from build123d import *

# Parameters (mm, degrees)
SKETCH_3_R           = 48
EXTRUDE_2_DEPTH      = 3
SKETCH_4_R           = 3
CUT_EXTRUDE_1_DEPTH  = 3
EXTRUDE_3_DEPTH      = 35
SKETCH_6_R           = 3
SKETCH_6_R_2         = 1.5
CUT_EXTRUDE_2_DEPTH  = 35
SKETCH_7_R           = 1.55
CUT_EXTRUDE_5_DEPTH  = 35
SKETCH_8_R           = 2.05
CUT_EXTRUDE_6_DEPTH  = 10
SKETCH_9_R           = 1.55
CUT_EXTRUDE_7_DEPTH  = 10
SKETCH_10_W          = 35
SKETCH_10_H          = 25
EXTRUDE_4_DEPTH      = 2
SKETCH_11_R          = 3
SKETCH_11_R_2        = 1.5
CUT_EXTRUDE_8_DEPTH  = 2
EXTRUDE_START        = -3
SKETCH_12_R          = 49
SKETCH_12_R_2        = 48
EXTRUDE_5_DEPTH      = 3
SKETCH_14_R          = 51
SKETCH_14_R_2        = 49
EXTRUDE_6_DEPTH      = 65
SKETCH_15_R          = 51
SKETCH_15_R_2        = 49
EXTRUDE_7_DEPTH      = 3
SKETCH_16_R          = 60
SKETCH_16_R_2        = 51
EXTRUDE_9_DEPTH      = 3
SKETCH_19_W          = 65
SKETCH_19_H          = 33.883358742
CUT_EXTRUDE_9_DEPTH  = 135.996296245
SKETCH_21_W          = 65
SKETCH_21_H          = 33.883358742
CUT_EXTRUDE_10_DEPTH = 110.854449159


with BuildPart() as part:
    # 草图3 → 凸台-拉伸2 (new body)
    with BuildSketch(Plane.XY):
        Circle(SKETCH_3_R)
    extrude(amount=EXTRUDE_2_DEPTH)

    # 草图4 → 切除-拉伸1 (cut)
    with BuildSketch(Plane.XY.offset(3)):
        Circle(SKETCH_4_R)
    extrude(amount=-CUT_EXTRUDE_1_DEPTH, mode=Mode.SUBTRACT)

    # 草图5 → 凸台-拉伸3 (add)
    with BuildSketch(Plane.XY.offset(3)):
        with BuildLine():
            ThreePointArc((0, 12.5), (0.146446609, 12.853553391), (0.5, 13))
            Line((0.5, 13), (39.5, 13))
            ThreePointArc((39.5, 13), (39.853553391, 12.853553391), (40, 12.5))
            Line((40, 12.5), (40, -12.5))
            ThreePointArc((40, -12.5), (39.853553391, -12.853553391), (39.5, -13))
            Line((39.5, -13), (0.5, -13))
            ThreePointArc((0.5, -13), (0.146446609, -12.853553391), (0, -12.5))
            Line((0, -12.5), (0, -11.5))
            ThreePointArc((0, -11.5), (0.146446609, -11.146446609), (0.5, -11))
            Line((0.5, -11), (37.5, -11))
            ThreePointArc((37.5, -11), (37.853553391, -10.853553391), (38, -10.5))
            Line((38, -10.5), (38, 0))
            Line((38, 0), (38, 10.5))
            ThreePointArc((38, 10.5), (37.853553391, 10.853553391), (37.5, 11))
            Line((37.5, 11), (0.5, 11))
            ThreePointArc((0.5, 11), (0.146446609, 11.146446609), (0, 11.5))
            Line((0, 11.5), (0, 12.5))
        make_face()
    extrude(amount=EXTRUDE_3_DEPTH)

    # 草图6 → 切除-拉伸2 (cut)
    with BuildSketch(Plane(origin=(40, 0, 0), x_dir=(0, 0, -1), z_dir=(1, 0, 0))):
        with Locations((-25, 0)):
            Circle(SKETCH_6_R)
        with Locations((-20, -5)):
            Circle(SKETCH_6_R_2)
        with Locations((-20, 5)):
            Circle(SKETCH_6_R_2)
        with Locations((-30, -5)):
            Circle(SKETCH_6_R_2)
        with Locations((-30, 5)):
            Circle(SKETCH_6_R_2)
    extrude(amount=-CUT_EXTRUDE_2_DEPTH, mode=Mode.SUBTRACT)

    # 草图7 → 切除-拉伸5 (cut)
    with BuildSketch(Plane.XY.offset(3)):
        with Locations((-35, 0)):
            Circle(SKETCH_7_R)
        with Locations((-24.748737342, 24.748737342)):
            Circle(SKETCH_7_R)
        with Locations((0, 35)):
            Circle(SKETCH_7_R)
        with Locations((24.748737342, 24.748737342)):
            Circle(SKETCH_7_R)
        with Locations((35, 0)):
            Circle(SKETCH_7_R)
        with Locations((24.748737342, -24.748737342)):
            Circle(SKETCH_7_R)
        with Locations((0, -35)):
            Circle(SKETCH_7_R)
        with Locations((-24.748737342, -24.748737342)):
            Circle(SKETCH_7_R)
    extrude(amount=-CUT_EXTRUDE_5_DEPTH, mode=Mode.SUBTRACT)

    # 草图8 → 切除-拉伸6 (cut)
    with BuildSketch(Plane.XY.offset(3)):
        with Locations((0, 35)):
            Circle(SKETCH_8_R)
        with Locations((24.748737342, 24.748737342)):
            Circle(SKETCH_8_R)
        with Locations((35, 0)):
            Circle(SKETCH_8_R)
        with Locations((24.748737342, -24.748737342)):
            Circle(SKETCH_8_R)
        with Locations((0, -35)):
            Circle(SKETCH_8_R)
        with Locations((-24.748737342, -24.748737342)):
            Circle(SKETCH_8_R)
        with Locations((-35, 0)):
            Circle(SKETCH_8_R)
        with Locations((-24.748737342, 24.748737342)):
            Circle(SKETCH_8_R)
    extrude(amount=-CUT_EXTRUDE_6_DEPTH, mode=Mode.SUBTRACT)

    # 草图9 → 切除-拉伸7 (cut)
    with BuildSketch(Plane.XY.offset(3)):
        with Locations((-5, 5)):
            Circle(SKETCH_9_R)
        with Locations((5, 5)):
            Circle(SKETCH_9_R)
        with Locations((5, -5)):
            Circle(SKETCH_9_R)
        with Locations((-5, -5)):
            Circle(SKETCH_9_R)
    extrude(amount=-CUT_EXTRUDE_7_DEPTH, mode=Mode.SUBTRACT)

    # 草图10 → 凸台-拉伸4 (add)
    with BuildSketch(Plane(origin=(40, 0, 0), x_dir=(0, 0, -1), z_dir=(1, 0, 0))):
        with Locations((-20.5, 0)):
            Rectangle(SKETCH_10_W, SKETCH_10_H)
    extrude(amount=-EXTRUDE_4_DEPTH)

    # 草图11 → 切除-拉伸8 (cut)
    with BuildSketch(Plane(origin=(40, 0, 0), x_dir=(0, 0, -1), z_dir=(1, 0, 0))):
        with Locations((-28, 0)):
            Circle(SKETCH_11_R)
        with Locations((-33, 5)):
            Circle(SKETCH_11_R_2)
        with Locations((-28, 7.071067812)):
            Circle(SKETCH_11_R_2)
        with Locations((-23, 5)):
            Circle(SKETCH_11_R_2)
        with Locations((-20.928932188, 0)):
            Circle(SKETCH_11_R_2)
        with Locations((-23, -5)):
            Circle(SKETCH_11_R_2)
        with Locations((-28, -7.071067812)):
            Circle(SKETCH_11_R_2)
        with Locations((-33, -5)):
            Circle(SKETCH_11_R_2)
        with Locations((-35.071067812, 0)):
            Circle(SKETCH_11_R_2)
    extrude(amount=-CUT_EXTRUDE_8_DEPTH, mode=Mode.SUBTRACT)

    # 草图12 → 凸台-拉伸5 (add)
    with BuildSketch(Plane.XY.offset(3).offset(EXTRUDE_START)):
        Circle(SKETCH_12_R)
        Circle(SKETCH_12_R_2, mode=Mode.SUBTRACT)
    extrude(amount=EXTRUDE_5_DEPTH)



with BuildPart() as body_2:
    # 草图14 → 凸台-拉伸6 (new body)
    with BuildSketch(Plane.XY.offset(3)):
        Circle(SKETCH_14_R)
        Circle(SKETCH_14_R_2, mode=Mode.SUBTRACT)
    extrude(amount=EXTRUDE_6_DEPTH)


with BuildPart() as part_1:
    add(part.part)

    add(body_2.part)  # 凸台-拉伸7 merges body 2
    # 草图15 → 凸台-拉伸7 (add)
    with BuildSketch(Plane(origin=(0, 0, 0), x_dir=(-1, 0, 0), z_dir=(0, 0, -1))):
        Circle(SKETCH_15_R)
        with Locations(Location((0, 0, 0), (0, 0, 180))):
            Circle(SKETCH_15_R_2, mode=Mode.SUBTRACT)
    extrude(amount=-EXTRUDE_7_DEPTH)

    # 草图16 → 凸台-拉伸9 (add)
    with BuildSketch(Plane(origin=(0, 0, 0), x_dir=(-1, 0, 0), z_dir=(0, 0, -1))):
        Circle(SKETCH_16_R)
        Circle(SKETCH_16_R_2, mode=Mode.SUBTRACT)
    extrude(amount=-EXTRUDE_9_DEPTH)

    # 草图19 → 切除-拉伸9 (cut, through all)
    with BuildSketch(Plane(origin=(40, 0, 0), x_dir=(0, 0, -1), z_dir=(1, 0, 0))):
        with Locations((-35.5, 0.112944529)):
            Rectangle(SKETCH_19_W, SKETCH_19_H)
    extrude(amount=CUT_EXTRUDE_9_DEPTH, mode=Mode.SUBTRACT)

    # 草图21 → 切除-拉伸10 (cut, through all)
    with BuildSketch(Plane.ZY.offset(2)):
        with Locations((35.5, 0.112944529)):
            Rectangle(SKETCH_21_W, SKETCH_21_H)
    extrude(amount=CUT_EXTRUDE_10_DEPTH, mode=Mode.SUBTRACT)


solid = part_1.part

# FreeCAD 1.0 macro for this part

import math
import FreeCAD as App
import Part
import Sketcher

doc = App.newDocument("Part")
body = doc.addObject("PartDesign::Body", "Body")

# Sketch on XY plane
sketch1 = doc.addObject("Sketcher::SketchObject", "Sketch")
body.addObject(sketch1)
sketch1.AttachmentSupport = (doc.XY_Plane, [""])
sketch1.MapMode = "FlatFace"
sketch1.addGeometry(Part.Circle(App.Vector(0, 0, 0), App.Vector(0, 0, 1), 48), False)
sketch1.addConstraint([
    Sketcher.Constraint("Coincident", 0, 3, -1, 1),
    Sketcher.Constraint("Diameter", 0, 96.0),
])
pad1 = doc.addObject("PartDesign::Pad", "Pad")
body.addObject(pad1)
pad1.Profile = sketch1
pad1.Length = 3

# Sketch on XY plane
sketch2 = doc.addObject("Sketcher::SketchObject", "Sketch001")
body.addObject(sketch2)
sketch2.AttachmentSupport = (doc.XY_Plane, [""])
sketch2.MapMode = "FlatFace"
sketch2.AttachmentOffset = App.Placement(App.Vector(0, 0, 3), App.Rotation())
sketch2.addGeometry(Part.Circle(App.Vector(0, 0, 0), App.Vector(0, 0, 1), 3), False)
sketch2.addConstraint([
    Sketcher.Constraint("Coincident", 0, 3, -1, 1),
    Sketcher.Constraint("Diameter", 0, 6.0),
])
pocket1 = doc.addObject("PartDesign::Pocket", "Pocket")
body.addObject(pocket1)
pocket1.Profile = sketch2
pocket1.Length = 3

# Sketch on XY plane
sketch3 = doc.addObject("Sketcher::SketchObject", "Sketch002")
body.addObject(sketch3)
sketch3.AttachmentSupport = (doc.XY_Plane, [""])
sketch3.MapMode = "FlatFace"
sketch3.AttachmentOffset = App.Placement(App.Vector(0, 0, 3), App.Rotation())
sketch3.addGeometry([
    Part.ArcOfCircle(Part.Circle(App.Vector(0.5, 12.5, 0), App.Vector(0, 0, 1), 0.5), math.radians(90), math.radians(180)),  # 0
    Part.LineSegment(App.Vector(0, 12.5, 0), App.Vector(0, 11.5, 0)),  # 1
    Part.ArcOfCircle(Part.Circle(App.Vector(0.5, 11.5, 0), App.Vector(0, 0, 1), 0.5), math.radians(180), math.radians(270)),  # 2
    Part.LineSegment(App.Vector(0.5, 11, 0), App.Vector(37.5, 11, 0)),  # 3
    Part.ArcOfCircle(Part.Circle(App.Vector(37.5, 10.5, 0), App.Vector(0, 0, 1), 0.5), math.radians(0), math.radians(90)),  # 4
    Part.LineSegment(App.Vector(38, 10.5, 0), App.Vector(38, -10.5, 0)),  # 5
    Part.ArcOfCircle(Part.Circle(App.Vector(37.5, -10.5, 0), App.Vector(0, 0, 1), 0.5), math.radians(-90), math.radians(0)),  # 6
    Part.LineSegment(App.Vector(37.5, -11, 0), App.Vector(0.5, -11, 0)),  # 7
    Part.ArcOfCircle(Part.Circle(App.Vector(0.5, -11.5, 0), App.Vector(0, 0, 1), 0.5), math.radians(90), math.radians(180)),  # 8
    Part.LineSegment(App.Vector(0, -11.5, 0), App.Vector(0, -12.5, 0)),  # 9
    Part.ArcOfCircle(Part.Circle(App.Vector(0.5, -12.5, 0), App.Vector(0, 0, 1), 0.5), math.radians(180), math.radians(270)),  # 10
    Part.LineSegment(App.Vector(0.5, -13, 0), App.Vector(39.5, -13, 0)),  # 11
    Part.ArcOfCircle(Part.Circle(App.Vector(39.5, -12.5, 0), App.Vector(0, 0, 1), 0.5), math.radians(-90), math.radians(0)),  # 12
    Part.LineSegment(App.Vector(40, -12.5, 0), App.Vector(40, 12.5, 0)),  # 13
    Part.ArcOfCircle(Part.Circle(App.Vector(39.5, 12.5, 0), App.Vector(0, 0, 1), 0.5), math.radians(0), math.radians(90)),  # 14
    Part.LineSegment(App.Vector(39.5, 13, 0), App.Vector(0.5, 13, 0)),  # 15
], False)
sketch3.addConstraint([
    Sketcher.Constraint("Tangent", 0, 2, 1, 1),
    Sketcher.Constraint("Tangent", 1, 2, 2, 1),
    Sketcher.Constraint("Tangent", 2, 2, 3, 1),
    Sketcher.Constraint("Tangent", 3, 2, 4, 2),
    Sketcher.Constraint("Tangent", 4, 1, 5, 1),
    Sketcher.Constraint("Tangent", 5, 2, 6, 2),
    Sketcher.Constraint("Tangent", 6, 1, 7, 1),
    Sketcher.Constraint("Tangent", 7, 2, 8, 1),
    Sketcher.Constraint("Tangent", 8, 2, 9, 1),
    Sketcher.Constraint("Tangent", 9, 2, 10, 1),
    Sketcher.Constraint("Tangent", 10, 2, 11, 1),
    Sketcher.Constraint("Tangent", 11, 2, 12, 1),
    Sketcher.Constraint("Tangent", 12, 2, 13, 1),
    Sketcher.Constraint("Tangent", 13, 2, 14, 1),
    Sketcher.Constraint("Tangent", 14, 2, 15, 1),
    Sketcher.Constraint("Tangent", 15, 2, 0, 1),
    Sketcher.Constraint("Vertical", 1),
    Sketcher.Constraint("Horizontal", 3),
    Sketcher.Constraint("Vertical", 5),
    Sketcher.Constraint("Horizontal", 7),
    Sketcher.Constraint("Vertical", 9),
    Sketcher.Constraint("Horizontal", 11),
    Sketcher.Constraint("Vertical", 13),
    Sketcher.Constraint("Horizontal", 15),
    Sketcher.Constraint("Equal", 0, 2),
    Sketcher.Constraint("Equal", 2, 4),
    Sketcher.Constraint("Equal", 4, 6),
    Sketcher.Constraint("Equal", 6, 8),
    Sketcher.Constraint("Equal", 8, 10),
    Sketcher.Constraint("Equal", 10, 12),
    Sketcher.Constraint("Equal", 12, 14),
    Sketcher.Constraint("Symmetric", 1, 2, 8, 2, -1, 1),
    Sketcher.Constraint("Symmetric", 0, 3, 10, 3, -1),
    Sketcher.Constraint("Radius", 0, 0.5),
    Sketcher.Constraint("DistanceX", 3, 1, 3, 2, 37.0),
    Sketcher.Constraint("DistanceX", 11, 1, 11, 2, 39.0),
    Sketcher.Constraint("DistanceY", 1, 2, 1, 1, 1.0),
    Sketcher.Constraint("DistanceY", 5, 2, 5, 1, 21.0),
])
pad2 = doc.addObject("PartDesign::Pad", "Pad001")
body.addObject(pad2)
pad2.Profile = sketch3
pad2.Length = 35

# Sketch on YZ plane
sketch4 = doc.addObject("Sketcher::SketchObject", "Sketch003")
body.addObject(sketch4)
sketch4.AttachmentSupport = (doc.YZ_Plane, [""])
sketch4.MapMode = "FlatFace"
sketch4.AttachmentOffset = App.Placement(App.Vector(0, 0, 40), App.Rotation())
sketch4.addGeometry([
    Part.Circle(App.Vector(0, 25, 0), App.Vector(0, 0, 1), 3),  # 0
    Part.Circle(App.Vector(-5, 20, 0), App.Vector(0, 0, 1), 1.5),  # 1
    Part.Circle(App.Vector(5, 20, 0), App.Vector(0, 0, 1), 1.5),  # 2
    Part.Circle(App.Vector(-5, 30, 0), App.Vector(0, 0, 1), 1.5),  # 3
    Part.Circle(App.Vector(5, 30, 0), App.Vector(0, 0, 1), 1.5),  # 4
], False)
sketch4.addConstraint([
    Sketcher.Constraint("Equal", 1, 2),
    Sketcher.Constraint("Equal", 2, 3),
    Sketcher.Constraint("Equal", 3, 4),
    Sketcher.Constraint("Symmetric", 1, 3, 2, 3, -2),
    Sketcher.Constraint("Symmetric", 3, 3, 4, 3, -2),
    Sketcher.Constraint("PointOnObject", 0, 3, -2),
    Sketcher.Constraint("Vertical", 1, 3, 3, 3),
    Sketcher.Constraint("Diameter", 0, 6.0),
    Sketcher.Constraint("Diameter", 1, 3.0),
    Sketcher.Constraint("DistanceY", -1, 1, 0, 3, 25.0),
    Sketcher.Constraint("DistanceX", 1, 3, -1, 1, 5.0),
    Sketcher.Constraint("DistanceY", -1, 1, 1, 3, 20.0),
    Sketcher.Constraint("DistanceY", -1, 1, 3, 3, 30.0),
])
pocket2 = doc.addObject("PartDesign::Pocket", "Pocket001")
body.addObject(pocket2)
pocket2.Profile = sketch4
pocket2.Length = 35

# Sketch on XY plane
sketch5 = doc.addObject("Sketcher::SketchObject", "Sketch004")
body.addObject(sketch5)
sketch5.AttachmentSupport = (doc.XY_Plane, [""])
sketch5.MapMode = "FlatFace"
sketch5.AttachmentOffset = App.Placement(App.Vector(0, 0, 3), App.Rotation())
sketch5.addGeometry([
    Part.Circle(App.Vector(-35, 0, 0), App.Vector(0, 0, 1), 1.55),  # 0
    Part.Circle(App.Vector(-24.748737, 24.748737, 0), App.Vector(0, 0, 1), 1.55),  # 1
    Part.Circle(App.Vector(0, 35, 0), App.Vector(0, 0, 1), 1.55),  # 2
    Part.Circle(App.Vector(24.748737, 24.748737, 0), App.Vector(0, 0, 1), 1.55),  # 3
    Part.Circle(App.Vector(35, 0, 0), App.Vector(0, 0, 1), 1.55),  # 4
    Part.Circle(App.Vector(24.748737, -24.748737, 0), App.Vector(0, 0, 1), 1.55),  # 5
    Part.Circle(App.Vector(0, -35, 0), App.Vector(0, 0, 1), 1.55),  # 6
    Part.Circle(App.Vector(-24.748737, -24.748737, 0), App.Vector(0, 0, 1), 1.55),  # 7
], False)
sketch5.addConstraint([
    Sketcher.Constraint("Equal", 0, 1),
    Sketcher.Constraint("Equal", 1, 2),
    Sketcher.Constraint("Equal", 2, 3),
    Sketcher.Constraint("Equal", 3, 4),
    Sketcher.Constraint("Equal", 4, 5),
    Sketcher.Constraint("Equal", 5, 6),
    Sketcher.Constraint("Equal", 6, 7),
    Sketcher.Constraint("Symmetric", 0, 3, 4, 3, -1, 1),
    Sketcher.Constraint("Symmetric", 1, 3, 5, 3, -1, 1),
    Sketcher.Constraint("Symmetric", 2, 3, 6, 3, -1, 1),
    Sketcher.Constraint("Symmetric", 3, 3, 7, 3, -1, 1),
    Sketcher.Constraint("Symmetric", 1, 3, 3, 3, -2),
    Sketcher.Constraint("PointOnObject", 0, 3, -1),
    Sketcher.Constraint("PointOnObject", 2, 3, -2),
    Sketcher.Constraint("Diameter", 0, 3.1),
    Sketcher.Constraint("DistanceX", 0, 3, -1, 1, 35.0),
    Sketcher.Constraint("DistanceY", -1, 1, 2, 3, 35.0),
    Sketcher.Constraint("DistanceX", 1, 3, -1, 1, 24.748737),
    Sketcher.Constraint("DistanceY", -1, 1, 1, 3, 24.748737),
])
pocket3 = doc.addObject("PartDesign::Pocket", "Pocket002")
body.addObject(pocket3)
pocket3.Profile = sketch5
pocket3.Length = 35

# Sketch on XY plane
sketch6 = doc.addObject("Sketcher::SketchObject", "Sketch005")
body.addObject(sketch6)
sketch6.AttachmentSupport = (doc.XY_Plane, [""])
sketch6.MapMode = "FlatFace"
sketch6.AttachmentOffset = App.Placement(App.Vector(0, 0, 3), App.Rotation())
sketch6.addGeometry([
    Part.Circle(App.Vector(0, 35, 0), App.Vector(0, 0, 1), 2.05),  # 0
    Part.Circle(App.Vector(24.748737, 24.748737, 0), App.Vector(0, 0, 1), 2.05),  # 1
    Part.Circle(App.Vector(35, 0, 0), App.Vector(0, 0, 1), 2.05),  # 2
    Part.Circle(App.Vector(24.748737, -24.748737, 0), App.Vector(0, 0, 1), 2.05),  # 3
    Part.Circle(App.Vector(0, -35, 0), App.Vector(0, 0, 1), 2.05),  # 4
    Part.Circle(App.Vector(-24.748737, -24.748737, 0), App.Vector(0, 0, 1), 2.05),  # 5
    Part.Circle(App.Vector(-35, 0, 0), App.Vector(0, 0, 1), 2.05),  # 6
    Part.Circle(App.Vector(-24.748737, 24.748737, 0), App.Vector(0, 0, 1), 2.05),  # 7
], False)
sketch6.addConstraint([
    Sketcher.Constraint("Equal", 0, 1),
    Sketcher.Constraint("Equal", 1, 2),
    Sketcher.Constraint("Equal", 2, 3),
    Sketcher.Constraint("Equal", 3, 4),
    Sketcher.Constraint("Equal", 4, 5),
    Sketcher.Constraint("Equal", 5, 6),
    Sketcher.Constraint("Equal", 6, 7),
    Sketcher.Constraint("Symmetric", 0, 3, 4, 3, -1, 1),
    Sketcher.Constraint("Symmetric", 1, 3, 5, 3, -1, 1),
    Sketcher.Constraint("Symmetric", 2, 3, 6, 3, -1, 1),
    Sketcher.Constraint("Symmetric", 3, 3, 7, 3, -1, 1),
    Sketcher.Constraint("Symmetric", 3, 3, 5, 3, -2),
    Sketcher.Constraint("PointOnObject", 0, 3, -2),
    Sketcher.Constraint("PointOnObject", 2, 3, -1),
    Sketcher.Constraint("Diameter", 0, 4.1),
    Sketcher.Constraint("DistanceY", -1, 1, 0, 3, 35.0),
    Sketcher.Constraint("DistanceX", -1, 1, 2, 3, 35.0),
    Sketcher.Constraint("DistanceX", -1, 1, 1, 3, 24.748737),
    Sketcher.Constraint("DistanceY", -1, 1, 1, 3, 24.748737),
])
pocket4 = doc.addObject("PartDesign::Pocket", "Pocket003")
body.addObject(pocket4)
pocket4.Profile = sketch6
pocket4.Length = 10

# Sketch on XY plane
sketch7 = doc.addObject("Sketcher::SketchObject", "Sketch006")
body.addObject(sketch7)
sketch7.AttachmentSupport = (doc.XY_Plane, [""])
sketch7.MapMode = "FlatFace"
sketch7.AttachmentOffset = App.Placement(App.Vector(0, 0, 3), App.Rotation())
sketch7.addGeometry([
    Part.Circle(App.Vector(-5, 5, 0), App.Vector(0, 0, 1), 1.55),
    Part.Circle(App.Vector(5, 5, 0), App.Vector(0, 0, 1), 1.55),
    Part.Circle(App.Vector(5, -5, 0), App.Vector(0, 0, 1), 1.55),
    Part.Circle(App.Vector(-5, -5, 0), App.Vector(0, 0, 1), 1.55),
], False)
sketch7.addConstraint([
    Sketcher.Constraint("Equal", 0, 1),
    Sketcher.Constraint("Equal", 1, 2),
    Sketcher.Constraint("Equal", 2, 3),
    Sketcher.Constraint("Symmetric", 0, 3, 2, 3, -1, 1),
    Sketcher.Constraint("Symmetric", 1, 3, 3, 3, -1, 1),
    Sketcher.Constraint("Symmetric", 0, 3, 1, 3, -2),
    Sketcher.Constraint("Diameter", 0, 3.1),
    Sketcher.Constraint("DistanceX", 0, 3, -1, 1, 5.0),
    Sketcher.Constraint("DistanceY", -1, 1, 0, 3, 5.0),
])
pocket5 = doc.addObject("PartDesign::Pocket", "Pocket004")
body.addObject(pocket5)
pocket5.Profile = sketch7
pocket5.Length = 10

# Sketch on YZ plane
sketch8 = doc.addObject("Sketcher::SketchObject", "Sketch007")
body.addObject(sketch8)
sketch8.AttachmentSupport = (doc.YZ_Plane, [""])
sketch8.MapMode = "FlatFace"
sketch8.AttachmentOffset = App.Placement(App.Vector(0, 0, 40), App.Rotation())
sketch8.addGeometry([
    Part.LineSegment(App.Vector(12.5, 38, 0), App.Vector(-12.5, 38, 0)),
    Part.LineSegment(App.Vector(-12.5, 38, 0), App.Vector(-12.5, 3, 0)),
    Part.LineSegment(App.Vector(-12.5, 3, 0), App.Vector(12.5, 3, 0)),
    Part.LineSegment(App.Vector(12.5, 3, 0), App.Vector(12.5, 38, 0)),
], False)
sketch8.addConstraint([
    Sketcher.Constraint("Coincident", 0, 2, 1, 1),
    Sketcher.Constraint("Coincident", 1, 2, 2, 1),
    Sketcher.Constraint("Coincident", 2, 2, 3, 1),
    Sketcher.Constraint("Coincident", 3, 2, 0, 1),
    Sketcher.Constraint("Horizontal", 0),
    Sketcher.Constraint("Vertical", 1),
    Sketcher.Constraint("Horizontal", 2),
    Sketcher.Constraint("Vertical", 3),
    Sketcher.Constraint("DistanceX", 0, 2, 0, 1, 25.0),
    Sketcher.Constraint("DistanceY", 1, 2, 1, 1, 35.0),
    Sketcher.Constraint("DistanceY", -1, 1, 0, 2, 38.0),
    Sketcher.Constraint("DistanceX", 0, 2, -1, 1, 12.5),
])
pad3 = doc.addObject("PartDesign::Pad", "Pad002")
body.addObject(pad3)
pad3.Profile = sketch8
pad3.Length = 2
pad3.Reversed = True

# Sketch on YZ plane
sketch9 = doc.addObject("Sketcher::SketchObject", "Sketch008")
body.addObject(sketch9)
sketch9.AttachmentSupport = (doc.YZ_Plane, [""])
sketch9.MapMode = "FlatFace"
sketch9.AttachmentOffset = App.Placement(App.Vector(0, 0, 40), App.Rotation())
sketch9.addGeometry([
    Part.Circle(App.Vector(0, 28, 0), App.Vector(0, 0, 1), 3),  # 0
    Part.Circle(App.Vector(5, 33, 0), App.Vector(0, 0, 1), 1.5),  # 1
    Part.Circle(App.Vector(7.071068, 28, 0), App.Vector(0, 0, 1), 1.5),  # 2
    Part.Circle(App.Vector(5, 23, 0), App.Vector(0, 0, 1), 1.5),  # 3
    Part.Circle(App.Vector(0, 20.928932, 0), App.Vector(0, 0, 1), 1.5),  # 4
    Part.Circle(App.Vector(-5, 23, 0), App.Vector(0, 0, 1), 1.5),  # 5
    Part.Circle(App.Vector(-7.071068, 28, 0), App.Vector(0, 0, 1), 1.5),  # 6
    Part.Circle(App.Vector(-5, 33, 0), App.Vector(0, 0, 1), 1.5),  # 7
    Part.Circle(App.Vector(0, 35.071068, 0), App.Vector(0, 0, 1), 1.5),  # 8
], False)
sketch9.addConstraint([
    Sketcher.Constraint("Equal", 1, 2),
    Sketcher.Constraint("Equal", 2, 3),
    Sketcher.Constraint("Equal", 3, 4),
    Sketcher.Constraint("Equal", 4, 5),
    Sketcher.Constraint("Equal", 5, 6),
    Sketcher.Constraint("Equal", 6, 7),
    Sketcher.Constraint("Equal", 7, 8),
    Sketcher.Constraint("Symmetric", 3, 3, 5, 3, -2),
    Sketcher.Constraint("Symmetric", 2, 3, 6, 3, -2),
    Sketcher.Constraint("Symmetric", 1, 3, 7, 3, -2),
    Sketcher.Constraint("PointOnObject", 0, 3, -2),
    Sketcher.Constraint("PointOnObject", 4, 3, -2),
    Sketcher.Constraint("PointOnObject", 8, 3, -2),
    Sketcher.Constraint("Horizontal", 0, 3, 2, 3),
    Sketcher.Constraint("Vertical", 1, 3, 3, 3),
    Sketcher.Constraint("Diameter", 0, 6.0),
    Sketcher.Constraint("Diameter", 1, 3.0),
    Sketcher.Constraint("DistanceY", -1, 1, 0, 3, 28.0),
    Sketcher.Constraint("DistanceX", -1, 1, 1, 3, 5.0),
    Sketcher.Constraint("DistanceY", -1, 1, 1, 3, 33.0),
    Sketcher.Constraint("DistanceY", -1, 1, 3, 3, 23.0),
    Sketcher.Constraint("DistanceX", -1, 1, 2, 3, 7.071068),
    Sketcher.Constraint("DistanceY", -1, 1, 4, 3, 20.928932),
    Sketcher.Constraint("DistanceY", -1, 1, 8, 3, 35.071068),
])
pocket6 = doc.addObject("PartDesign::Pocket", "Pocket005")
body.addObject(pocket6)
pocket6.Profile = sketch9
pocket6.Length = 2

# Sketch on XY plane
sketch10 = doc.addObject("Sketcher::SketchObject", "Sketch009")
body.addObject(sketch10)
sketch10.AttachmentSupport = (doc.XY_Plane, [""])
sketch10.MapMode = "FlatFace"
sketch10.addGeometry([
    Part.Circle(App.Vector(0, 0, 0), App.Vector(0, 0, 1), 49),
    Part.Circle(App.Vector(0, 0, 0), App.Vector(0, 0, 1), 48),
], False)
sketch10.addConstraint([
    Sketcher.Constraint("Coincident", 0, 3, -1, 1),
    Sketcher.Constraint("Coincident", 1, 3, -1, 1),
    Sketcher.Constraint("Diameter", 0, 98.0),
    Sketcher.Constraint("Diameter", 1, 96.0),
])
pad4 = doc.addObject("PartDesign::Pad", "Pad003")
body.addObject(pad4)
pad4.Profile = sketch10
pad4.Length = 3
body2 = doc.addObject("PartDesign::Body", "Body001")

# Sketch on XY plane
sketch11 = doc.addObject("Sketcher::SketchObject", "Sketch010")
body2.addObject(sketch11)
sketch11.AttachmentSupport = (doc.getObject("XY_Plane001"), [""])
sketch11.MapMode = "FlatFace"
sketch11.AttachmentOffset = App.Placement(App.Vector(0, 0, 3), App.Rotation())
sketch11.addGeometry([
    Part.Circle(App.Vector(0, 0, 0), App.Vector(0, 0, 1), 51),
    Part.Circle(App.Vector(0, 0, 0), App.Vector(0, 0, 1), 49),
], False)
sketch11.addConstraint([
    Sketcher.Constraint("Coincident", 0, 3, -1, 1),
    Sketcher.Constraint("Coincident", 1, 3, -1, 1),
    Sketcher.Constraint("Diameter", 0, 102.0),
    Sketcher.Constraint("Diameter", 1, 98.0),
])
pad5 = doc.addObject("PartDesign::Pad", "Pad004")
body2.addObject(pad5)
pad5.Profile = sketch11
pad5.Length = 65
body.AllowCompound = True
doc.recompute()

boolean = doc.addObject("PartDesign::Boolean", "Boolean")
body.addObject(boolean)
boolean.Type = "Fuse"
boolean.addObjects([body2])

# Sketch on XY plane
sketch12 = doc.addObject("Sketcher::SketchObject", "Sketch011")
body.addObject(sketch12)
sketch12.AttachmentSupport = (doc.XY_Plane, [""])
sketch12.MapMode = "FlatFace"
sketch12.addGeometry([
    Part.Circle(App.Vector(0, 0, 0), App.Vector(0, 0, 1), 51),
    Part.Circle(App.Vector(0, 0, 0), App.Vector(0, 0, 1), 49),
], False)
sketch12.addConstraint([
    Sketcher.Constraint("Coincident", 0, 3, -1, 1),
    Sketcher.Constraint("Coincident", 1, 3, -1, 1),
    Sketcher.Constraint("Diameter", 0, 102.0),
    Sketcher.Constraint("Diameter", 1, 98.0),
])
pad6 = doc.addObject("PartDesign::Pad", "Pad005")
body.addObject(pad6)
pad6.Profile = sketch12
pad6.Length = 3

# Sketch on XY plane
sketch13 = doc.addObject("Sketcher::SketchObject", "Sketch012")
body.addObject(sketch13)
sketch13.AttachmentSupport = (doc.XY_Plane, [""])
sketch13.MapMode = "FlatFace"
sketch13.addGeometry([
    Part.Circle(App.Vector(0, 0, 0), App.Vector(0, 0, 1), 60),
    Part.Circle(App.Vector(0, 0, 0), App.Vector(0, 0, 1), 51),
], False)
sketch13.addConstraint([
    Sketcher.Constraint("Coincident", 0, 3, -1, 1),
    Sketcher.Constraint("Coincident", 1, 3, -1, 1),
    Sketcher.Constraint("Diameter", 0, 120.0),
    Sketcher.Constraint("Diameter", 1, 102.0),
])
pad7 = doc.addObject("PartDesign::Pad", "Pad006")
body.addObject(pad7)
pad7.Profile = sketch13
pad7.Length = 3

# Sketch on YZ plane
sketch14 = doc.addObject("Sketcher::SketchObject", "Sketch013")
body.addObject(sketch14)
sketch14.AttachmentSupport = (doc.YZ_Plane, [""])
sketch14.MapMode = "FlatFace"
sketch14.AttachmentOffset = App.Placement(App.Vector(0, 0, 40), App.Rotation())
sketch14.addGeometry([
    Part.LineSegment(App.Vector(17.054624, 68, 0), App.Vector(-16.828735, 68, 0)),
    Part.LineSegment(App.Vector(-16.828735, 68, 0), App.Vector(-16.828735, 3, 0)),
    Part.LineSegment(App.Vector(-16.828735, 3, 0), App.Vector(17.054624, 3, 0)),
    Part.LineSegment(App.Vector(17.054624, 3, 0), App.Vector(17.054624, 68, 0)),
], False)
sketch14.addConstraint([
    Sketcher.Constraint("Coincident", 0, 2, 1, 1),
    Sketcher.Constraint("Coincident", 1, 2, 2, 1),
    Sketcher.Constraint("Coincident", 2, 2, 3, 1),
    Sketcher.Constraint("Coincident", 3, 2, 0, 1),
    Sketcher.Constraint("Horizontal", 0),
    Sketcher.Constraint("Vertical", 1),
    Sketcher.Constraint("Horizontal", 2),
    Sketcher.Constraint("Vertical", 3),
    Sketcher.Constraint("DistanceY", 1, 2, 1, 1, 65.0),
    Sketcher.Constraint("DistanceY", -1, 1, 0, 2, 68.0),
    Sketcher.Constraint("DistanceX", 0, 2, 0, 1, 33.883359),
    Sketcher.Constraint("DistanceX", 0, 2, -1, 1, 16.828735),
])
pocket7 = doc.addObject("PartDesign::Pocket", "Pocket006")
body.addObject(pocket7)
pocket7.Profile = sketch14
pocket7.Type = "ThroughAll"
pocket7.Reversed = True

# Sketch on YZ plane
sketch15 = doc.addObject("Sketcher::SketchObject", "Sketch014")
body.addObject(sketch15)
sketch15.AttachmentSupport = (doc.YZ_Plane, [""])
sketch15.MapMode = "FlatFace"
sketch15.AttachmentOffset = App.Placement(App.Vector(0, 0, -2), App.Rotation())
sketch15.addGeometry([
    Part.LineSegment(App.Vector(17.054624, 3, 0), App.Vector(-16.828735, 3, 0)),
    Part.LineSegment(App.Vector(-16.828735, 3, 0), App.Vector(-16.828735, 68, 0)),
    Part.LineSegment(App.Vector(-16.828735, 68, 0), App.Vector(17.054624, 68, 0)),
    Part.LineSegment(App.Vector(17.054624, 68, 0), App.Vector(17.054624, 3, 0)),
], False)
sketch15.addConstraint([
    Sketcher.Constraint("Coincident", 0, 2, 1, 1),
    Sketcher.Constraint("Coincident", 1, 2, 2, 1),
    Sketcher.Constraint("Coincident", 2, 2, 3, 1),
    Sketcher.Constraint("Coincident", 3, 2, 0, 1),
    Sketcher.Constraint("Horizontal", 0),
    Sketcher.Constraint("Vertical", 1),
    Sketcher.Constraint("Horizontal", 2),
    Sketcher.Constraint("Vertical", 3),
    Sketcher.Constraint("DistanceY", 1, 1, 1, 2, 65.0),
    Sketcher.Constraint("DistanceY", -1, 1, 0, 2, 3.0),
    Sketcher.Constraint("DistanceX", 0, 2, 0, 1, 33.883359),
    Sketcher.Constraint("DistanceX", 0, 2, -1, 1, 16.828735),
])
pocket8 = doc.addObject("PartDesign::Pocket", "Pocket007")
body.addObject(pocket8)
pocket8.Profile = sketch15
pocket8.Type = "ThroughAll"

doc.recompute()
